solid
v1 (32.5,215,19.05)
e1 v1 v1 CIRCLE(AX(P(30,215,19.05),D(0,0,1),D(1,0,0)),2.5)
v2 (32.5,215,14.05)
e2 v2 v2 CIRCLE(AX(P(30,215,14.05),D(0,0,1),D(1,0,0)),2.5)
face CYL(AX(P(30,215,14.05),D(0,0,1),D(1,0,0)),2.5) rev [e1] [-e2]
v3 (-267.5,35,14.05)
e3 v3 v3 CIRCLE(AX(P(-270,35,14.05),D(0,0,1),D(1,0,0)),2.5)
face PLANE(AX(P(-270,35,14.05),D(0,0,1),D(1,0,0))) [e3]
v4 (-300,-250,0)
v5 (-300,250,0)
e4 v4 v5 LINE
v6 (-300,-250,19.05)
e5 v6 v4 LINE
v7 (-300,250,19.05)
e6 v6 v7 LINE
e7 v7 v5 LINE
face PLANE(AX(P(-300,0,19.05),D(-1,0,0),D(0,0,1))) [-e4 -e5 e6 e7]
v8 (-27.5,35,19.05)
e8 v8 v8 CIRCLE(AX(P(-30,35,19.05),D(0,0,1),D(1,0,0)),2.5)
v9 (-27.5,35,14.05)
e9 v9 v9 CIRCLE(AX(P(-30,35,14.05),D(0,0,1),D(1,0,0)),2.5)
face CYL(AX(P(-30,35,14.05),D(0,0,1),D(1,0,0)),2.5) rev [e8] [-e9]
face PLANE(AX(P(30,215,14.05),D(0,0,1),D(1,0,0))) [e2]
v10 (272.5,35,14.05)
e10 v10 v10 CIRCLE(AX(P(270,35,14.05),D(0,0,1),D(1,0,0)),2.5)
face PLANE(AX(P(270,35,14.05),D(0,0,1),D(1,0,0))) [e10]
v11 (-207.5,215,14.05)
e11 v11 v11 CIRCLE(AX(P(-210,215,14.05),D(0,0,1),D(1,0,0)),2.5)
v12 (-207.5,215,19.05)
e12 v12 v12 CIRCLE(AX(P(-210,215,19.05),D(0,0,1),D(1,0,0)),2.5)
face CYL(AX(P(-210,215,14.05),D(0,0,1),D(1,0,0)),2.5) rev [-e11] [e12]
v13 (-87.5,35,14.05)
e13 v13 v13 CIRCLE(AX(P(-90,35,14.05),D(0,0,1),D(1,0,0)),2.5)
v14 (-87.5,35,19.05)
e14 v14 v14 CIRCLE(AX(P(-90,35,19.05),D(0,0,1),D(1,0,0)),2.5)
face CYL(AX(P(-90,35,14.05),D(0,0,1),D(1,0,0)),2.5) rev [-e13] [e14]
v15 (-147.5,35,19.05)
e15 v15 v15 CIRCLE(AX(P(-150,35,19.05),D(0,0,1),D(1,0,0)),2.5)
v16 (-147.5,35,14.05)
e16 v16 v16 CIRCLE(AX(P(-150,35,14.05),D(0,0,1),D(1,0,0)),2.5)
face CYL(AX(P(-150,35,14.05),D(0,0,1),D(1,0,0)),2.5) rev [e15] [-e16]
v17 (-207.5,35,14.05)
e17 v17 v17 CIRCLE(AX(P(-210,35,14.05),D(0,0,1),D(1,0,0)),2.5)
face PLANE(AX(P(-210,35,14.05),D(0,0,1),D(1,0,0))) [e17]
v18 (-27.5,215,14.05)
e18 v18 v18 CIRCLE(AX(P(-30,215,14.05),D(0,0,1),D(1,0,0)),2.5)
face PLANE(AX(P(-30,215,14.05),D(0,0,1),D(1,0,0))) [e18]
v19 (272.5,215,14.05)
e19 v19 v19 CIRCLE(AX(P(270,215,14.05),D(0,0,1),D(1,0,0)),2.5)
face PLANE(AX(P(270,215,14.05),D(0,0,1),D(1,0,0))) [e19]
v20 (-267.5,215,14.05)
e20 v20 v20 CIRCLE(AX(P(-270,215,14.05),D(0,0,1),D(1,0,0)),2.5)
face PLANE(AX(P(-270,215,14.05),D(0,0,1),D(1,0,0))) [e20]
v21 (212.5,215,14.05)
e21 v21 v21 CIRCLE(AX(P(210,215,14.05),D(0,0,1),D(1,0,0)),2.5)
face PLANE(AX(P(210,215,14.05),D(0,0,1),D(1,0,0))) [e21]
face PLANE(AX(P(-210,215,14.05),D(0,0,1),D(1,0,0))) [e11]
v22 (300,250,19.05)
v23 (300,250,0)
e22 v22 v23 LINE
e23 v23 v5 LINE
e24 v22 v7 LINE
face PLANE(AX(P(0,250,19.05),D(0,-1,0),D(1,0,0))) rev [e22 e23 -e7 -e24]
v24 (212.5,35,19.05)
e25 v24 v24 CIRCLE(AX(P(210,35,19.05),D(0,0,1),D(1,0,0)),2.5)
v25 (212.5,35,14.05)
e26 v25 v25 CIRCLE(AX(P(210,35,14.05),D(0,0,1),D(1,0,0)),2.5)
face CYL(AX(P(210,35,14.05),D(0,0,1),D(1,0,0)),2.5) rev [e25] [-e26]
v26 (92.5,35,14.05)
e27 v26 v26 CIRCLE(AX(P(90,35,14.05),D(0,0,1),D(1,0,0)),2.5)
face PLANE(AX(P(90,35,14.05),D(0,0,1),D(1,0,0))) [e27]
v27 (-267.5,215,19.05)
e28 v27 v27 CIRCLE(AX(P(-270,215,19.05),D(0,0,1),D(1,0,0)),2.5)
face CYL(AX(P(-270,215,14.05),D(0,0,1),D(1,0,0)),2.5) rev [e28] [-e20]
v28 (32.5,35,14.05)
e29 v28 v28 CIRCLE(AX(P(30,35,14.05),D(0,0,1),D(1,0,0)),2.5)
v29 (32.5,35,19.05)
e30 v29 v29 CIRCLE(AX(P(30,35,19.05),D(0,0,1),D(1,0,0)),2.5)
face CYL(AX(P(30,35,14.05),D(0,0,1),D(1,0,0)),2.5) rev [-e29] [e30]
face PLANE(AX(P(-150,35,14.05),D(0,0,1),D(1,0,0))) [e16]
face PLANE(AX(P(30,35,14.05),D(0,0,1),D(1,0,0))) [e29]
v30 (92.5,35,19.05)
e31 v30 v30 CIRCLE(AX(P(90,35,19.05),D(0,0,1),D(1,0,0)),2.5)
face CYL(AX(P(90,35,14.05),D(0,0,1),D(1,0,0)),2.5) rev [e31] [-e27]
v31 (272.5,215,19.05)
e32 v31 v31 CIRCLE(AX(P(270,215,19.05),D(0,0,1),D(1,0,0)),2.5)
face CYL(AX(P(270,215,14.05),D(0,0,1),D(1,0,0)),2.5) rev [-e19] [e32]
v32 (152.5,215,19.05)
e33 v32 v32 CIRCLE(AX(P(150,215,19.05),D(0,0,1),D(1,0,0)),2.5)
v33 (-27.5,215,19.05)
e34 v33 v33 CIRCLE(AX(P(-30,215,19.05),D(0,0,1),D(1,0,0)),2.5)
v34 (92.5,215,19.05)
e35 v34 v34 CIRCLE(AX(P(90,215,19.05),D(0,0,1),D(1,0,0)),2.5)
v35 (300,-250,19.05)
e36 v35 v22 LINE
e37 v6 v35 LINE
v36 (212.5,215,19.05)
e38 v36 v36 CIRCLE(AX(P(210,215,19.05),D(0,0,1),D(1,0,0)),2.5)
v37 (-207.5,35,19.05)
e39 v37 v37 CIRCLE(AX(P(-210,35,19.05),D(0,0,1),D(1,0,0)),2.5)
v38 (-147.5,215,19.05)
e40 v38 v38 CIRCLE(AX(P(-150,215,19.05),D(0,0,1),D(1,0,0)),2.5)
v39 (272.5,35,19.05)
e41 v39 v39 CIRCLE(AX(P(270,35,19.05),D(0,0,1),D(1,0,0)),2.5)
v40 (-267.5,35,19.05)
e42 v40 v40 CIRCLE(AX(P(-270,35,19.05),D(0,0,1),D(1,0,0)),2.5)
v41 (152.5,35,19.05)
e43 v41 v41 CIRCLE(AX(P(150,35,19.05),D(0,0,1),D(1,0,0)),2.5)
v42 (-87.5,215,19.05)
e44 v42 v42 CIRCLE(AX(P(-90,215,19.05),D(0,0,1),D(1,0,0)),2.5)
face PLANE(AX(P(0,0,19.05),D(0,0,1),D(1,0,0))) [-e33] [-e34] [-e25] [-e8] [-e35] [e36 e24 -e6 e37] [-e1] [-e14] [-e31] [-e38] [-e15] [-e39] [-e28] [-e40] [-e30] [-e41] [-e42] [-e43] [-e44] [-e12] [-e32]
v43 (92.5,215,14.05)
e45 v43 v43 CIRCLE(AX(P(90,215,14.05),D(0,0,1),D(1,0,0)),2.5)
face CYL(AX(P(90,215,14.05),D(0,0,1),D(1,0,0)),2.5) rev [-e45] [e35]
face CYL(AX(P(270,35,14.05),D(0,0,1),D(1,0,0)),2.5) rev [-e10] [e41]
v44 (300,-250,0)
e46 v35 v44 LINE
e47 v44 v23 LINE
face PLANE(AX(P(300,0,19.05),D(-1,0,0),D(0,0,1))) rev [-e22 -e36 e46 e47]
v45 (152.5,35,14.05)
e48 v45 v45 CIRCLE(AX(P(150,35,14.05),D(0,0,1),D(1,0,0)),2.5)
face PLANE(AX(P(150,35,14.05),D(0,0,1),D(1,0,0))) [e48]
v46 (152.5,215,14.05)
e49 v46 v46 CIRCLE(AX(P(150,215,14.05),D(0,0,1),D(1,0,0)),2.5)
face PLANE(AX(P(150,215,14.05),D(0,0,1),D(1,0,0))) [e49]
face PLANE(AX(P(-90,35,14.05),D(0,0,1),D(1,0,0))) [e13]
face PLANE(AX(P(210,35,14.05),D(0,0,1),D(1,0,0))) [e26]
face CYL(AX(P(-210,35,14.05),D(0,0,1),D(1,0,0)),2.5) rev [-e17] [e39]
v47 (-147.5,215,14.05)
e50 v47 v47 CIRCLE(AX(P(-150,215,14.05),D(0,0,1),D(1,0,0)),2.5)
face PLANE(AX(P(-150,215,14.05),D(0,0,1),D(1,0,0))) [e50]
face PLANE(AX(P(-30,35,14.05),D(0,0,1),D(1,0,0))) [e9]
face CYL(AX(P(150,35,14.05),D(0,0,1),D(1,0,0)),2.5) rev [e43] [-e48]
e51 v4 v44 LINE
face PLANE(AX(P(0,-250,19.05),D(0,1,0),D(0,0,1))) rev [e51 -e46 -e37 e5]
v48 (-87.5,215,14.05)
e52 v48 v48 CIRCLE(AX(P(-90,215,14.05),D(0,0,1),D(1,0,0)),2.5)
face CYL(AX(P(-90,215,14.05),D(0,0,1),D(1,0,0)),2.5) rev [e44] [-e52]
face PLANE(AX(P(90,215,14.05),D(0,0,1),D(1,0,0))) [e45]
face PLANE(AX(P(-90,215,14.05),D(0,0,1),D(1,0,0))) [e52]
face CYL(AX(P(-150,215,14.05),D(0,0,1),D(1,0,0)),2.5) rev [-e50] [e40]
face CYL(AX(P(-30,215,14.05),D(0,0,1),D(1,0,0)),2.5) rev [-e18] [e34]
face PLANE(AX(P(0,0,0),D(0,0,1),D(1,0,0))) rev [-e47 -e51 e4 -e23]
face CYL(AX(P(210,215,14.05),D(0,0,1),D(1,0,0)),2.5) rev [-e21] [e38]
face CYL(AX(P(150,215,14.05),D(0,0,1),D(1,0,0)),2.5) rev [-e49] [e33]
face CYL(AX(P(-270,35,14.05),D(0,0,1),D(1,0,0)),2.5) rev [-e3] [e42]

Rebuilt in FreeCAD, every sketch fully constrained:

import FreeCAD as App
import Part
import Sketcher


def add_polygon(sketch, points):
    """Adds a closed chain of lines whose ends are joined by coincident constraints."""
    first, n = sketch.GeometryCount, len(points)
    for a, b in zip(points, points[1:] + points[:1]):
        sketch.addGeometry(Part.LineSegment(App.Vector(*a, 0), App.Vector(*b, 0)), False)
    for i in range(n):
        sketch.addConstraint(Sketcher.Constraint("Coincident", first + i, 2, first + (i + 1) % n, 1))

doc = App.newDocument("Part")
body = doc.addObject("PartDesign::Body", "Body")

sketch1 = body.newObject("Sketcher::SketchObject", "Sketch")
sketch1.AttachmentSupport = (doc.getObject("XY_Plane"), [""])
sketch1.MapMode = "FlatFace"
add_polygon(sketch1, [(300, 250), (-300, 250), (-300, -250), (300, -250)])
sketch1.addConstraint([
    Sketcher.Constraint("Horizontal", 0),
    Sketcher.Constraint("Vertical", 1),
    Sketcher.Constraint("Horizontal", 2),
    Sketcher.Constraint("Vertical", 3),
    Sketcher.Constraint("Symmetric", 0, 2, 2, 2, -1, 1),
    Sketcher.Constraint("DistanceX", 0, 2, 0, 1, 600.0),
    Sketcher.Constraint("DistanceY", 1, 2, 1, 1, 500.0),
])
pad1 = body.newObject("PartDesign::Pad", "Pad")
pad1.Profile = sketch1
pad1.Length = 19.05

sketch2 = body.newObject("Sketcher::SketchObject", "Sketch001")
sketch2.AttachmentSupport = (doc.getObject("XY_Plane"), [""])
sketch2.MapMode = "FlatFace"
sketch2.AttachmentOffset = App.Placement(App.Vector(0, 0, 19.05), App.Rotation())
sketch2.addGeometry([
    Part.Circle(App.Vector(270, 35, 0), App.Vector(0, 0, 1), 2.5),
    Part.Circle(App.Vector(210, 35, 0), App.Vector(0, 0, 1), 2.5),
    Part.Circle(App.Vector(150, 35, 0), App.Vector(0, 0, 1), 2.5),
    Part.Circle(App.Vector(90, 35, 0), App.Vector(0, 0, 1), 2.5),
    Part.Circle(App.Vector(30, 35, 0), App.Vector(0, 0, 1), 2.5),
    Part.Circle(App.Vector(-30, 35, 0), App.Vector(0, 0, 1), 2.5),
    Part.Circle(App.Vector(-90, 35, 0), App.Vector(0, 0, 1), 2.5),
    Part.Circle(App.Vector(-150, 35, 0), App.Vector(0, 0, 1), 2.5),
    Part.Circle(App.Vector(-210, 35, 0), App.Vector(0, 0, 1), 2.5),
    Part.Circle(App.Vector(-270, 35, 0), App.Vector(0, 0, 1), 2.5),
    Part.Circle(App.Vector(-270, 215, 0), App.Vector(0, 0, 1), 2.5),
    Part.Circle(App.Vector(-210, 215, 0), App.Vector(0, 0, 1), 2.5),
    Part.Circle(App.Vector(-150, 215, 0), App.Vector(0, 0, 1), 2.5),
    Part.Circle(App.Vector(-90, 215, 0), App.Vector(0, 0, 1), 2.5),
    Part.Circle(App.Vector(-30, 215, 0), App.Vector(0, 0, 1), 2.5),
    Part.Circle(App.Vector(30, 215, 0), App.Vector(0, 0, 1), 2.5),
    Part.Circle(App.Vector(90, 215, 0), App.Vector(0, 0, 1), 2.5),
    Part.Circle(App.Vector(150, 215, 0), App.Vector(0, 0, 1), 2.5),
    Part.Circle(App.Vector(210, 215, 0), App.Vector(0, 0, 1), 2.5),
    Part.Circle(App.Vector(270, 215, 0), App.Vector(0, 0, 1), 2.5),
], False)
sketch2.addConstraint([
    Sketcher.Constraint("Equal", 0, 1),
    Sketcher.Constraint("Equal", 1, 2),
    Sketcher.Constraint("Equal", 2, 3),
    Sketcher.Constraint("Equal", 3, 4),
    Sketcher.Constraint("Equal", 4, 5),
    Sketcher.Constraint("Equal", 5, 6),
    Sketcher.Constraint("Equal", 6, 7),
    Sketcher.Constraint("Equal", 7, 8),
    Sketcher.Constraint("Equal", 8, 9),
    Sketcher.Constraint("Equal", 9, 10),
    Sketcher.Constraint("Equal", 10, 11),
    Sketcher.Constraint("Equal", 11, 12),
    Sketcher.Constraint("Equal", 12, 13),
    Sketcher.Constraint("Equal", 13, 14),
    Sketcher.Constraint("Equal", 14, 15),
    Sketcher.Constraint("Equal", 15, 16),
    Sketcher.Constraint("Equal", 16, 17),
    Sketcher.Constraint("Equal", 17, 18),
    Sketcher.Constraint("Equal", 18, 19),
    Sketcher.Constraint("Symmetric", 4, 3, 5, 3, -2),
    Sketcher.Constraint("Symmetric", 3, 3, 6, 3, -2),
    Sketcher.Constraint("Symmetric", 2, 3, 7, 3, -2),
    Sketcher.Constraint("Symmetric", 1, 3, 8, 3, -2),
    Sketcher.Constraint("Symmetric", 0, 3, 9, 3, -2),
    Sketcher.Constraint("Symmetric", 14, 3, 15, 3, -2),
    Sketcher.Constraint("Symmetric", 13, 3, 16, 3, -2),
    Sketcher.Constraint("Symmetric", 12, 3, 17, 3, -2),
    Sketcher.Constraint("Symmetric", 11, 3, 18, 3, -2),
    Sketcher.Constraint("Symmetric", 10, 3, 19, 3, -2),
    Sketcher.Constraint("Horizontal", 0, 3, 1, 3),
    Sketcher.Constraint("Horizontal", 1, 3, 2, 3),
    Sketcher.Constraint("Horizontal", 2, 3, 3, 3),
    Sketcher.Constraint("Horizontal", 3, 3, 4, 3),
    Sketcher.Constraint("Horizontal", 10, 3, 11, 3),
    Sketcher.Constraint("Horizontal", 11, 3, 12, 3),
    Sketcher.Constraint("Horizontal", 12, 3, 13, 3),
    Sketcher.Constraint("Horizontal", 13, 3, 14, 3),
    Sketcher.Constraint("Vertical", 9, 3, 10, 3),
    Sketcher.Constraint("Vertical", 8, 3, 11, 3),
    Sketcher.Constraint("Vertical", 7, 3, 12, 3),
    Sketcher.Constraint("Vertical", 6, 3, 13, 3),
    Sketcher.Constraint("Vertical", 5, 3, 14, 3),
    Sketcher.Constraint("Diameter", 0, 5.0),
    Sketcher.Constraint("DistanceX", -1, 1, 0, 3, 270.0),
    Sketcher.Constraint("DistanceY", -1, 1, 0, 3, 35.0),
    Sketcher.Constraint("DistanceX", -1, 1, 1, 3, 210.0),
    Sketcher.Constraint("DistanceX", -1, 1, 2, 3, 150.0),
    Sketcher.Constraint("DistanceX", -1, 1, 3, 3, 90.0),
    Sketcher.Constraint("DistanceX", -1, 1, 4, 3, 30.0),
    Sketcher.Constraint("DistanceY", -1, 1, 10, 3, 215.0),
])
pocket1 = body.newObject("PartDesign::Pocket", "Pocket")
pocket1.Profile = sketch2
pocket1.Length = 5

doc.recompute()
